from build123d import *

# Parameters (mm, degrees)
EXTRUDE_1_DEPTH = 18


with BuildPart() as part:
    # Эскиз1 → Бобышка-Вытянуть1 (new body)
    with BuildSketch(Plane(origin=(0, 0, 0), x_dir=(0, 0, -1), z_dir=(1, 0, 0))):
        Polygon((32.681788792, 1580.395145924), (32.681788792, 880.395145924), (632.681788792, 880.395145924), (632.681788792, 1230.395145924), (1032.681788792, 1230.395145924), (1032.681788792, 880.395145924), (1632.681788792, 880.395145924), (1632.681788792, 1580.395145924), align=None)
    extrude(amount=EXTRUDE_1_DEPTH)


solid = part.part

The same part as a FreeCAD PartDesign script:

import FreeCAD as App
import Part
import Sketcher
from FreeCAD import Vector


def add_polygon(sketch, points):
    """Adds a closed chain of lines whose ends are joined by coincident constraints."""
    first, n = sketch.GeometryCount, len(points)
    for a, b in zip(points, points[1:] + points[:1]):
        sketch.addGeometry(Part.LineSegment(App.Vector(*a, 0), App.Vector(*b, 0)), False)
    for i in range(n):
        sketch.addConstraint(Sketcher.Constraint("Coincident", first + i, 2, first + (i + 1) % n, 1))

doc = App.newDocument("Part")
body = doc.addObject("PartDesign::Body", "Body")

sketch1 = doc.addObject("Sketcher::SketchObject", "Sketch")
body.addObject(sketch1)
sketch1.AttachmentSupport = (doc.YZ_Plane, [""])
sketch1.MapMode = "FlatFace"
add_polygon(sketch1, [(1580.395146, -32.681789), (880.395146, -32.681789), (880.395146, -632.681789), (1230.395146, -632.681789), (1230.395146, -1032.681789), (880.395146, -1032.681789), (880.395146, -1632.681789), (1580.395146, -1632.681789)])
sketch1.addConstraint([
    Sketcher.Constraint("Horizontal", 0),
    Sketcher.Constraint("Vertical", 1),
    Sketcher.Constraint("Horizontal", 2),
    Sketcher.Constraint("Vertical", 3),
    Sketcher.Constraint("Horizontal", 4),
    Sketcher.Constraint("Vertical", 5),
    Sketcher.Constraint("Horizontal", 6),
    Sketcher.Constraint("Vertical", 7),
    Sketcher.Constraint("Vertical", 1, 2, 4, 2),
    Sketcher.Constraint("Equal", 1, 5),
    Sketcher.Constraint("DistanceX", 0, 2, 0, 1, 700.0),
    Sketcher.Constraint("DistanceX", 2, 1, 2, 2, 350.0),
    Sketcher.Constraint("DistanceY", 1, 2, 1, 1, 600.0),
    Sketcher.Constraint("DistanceY", 3, 2, 3, 1, 400.0),
    Sketcher.Constraint("DistanceY", 0, 2, -1, 1, 32.681789),
    Sketcher.Constraint("DistanceX", -1, 1, 0, 2, 880.395146),
])
pad1 = doc.addObject("PartDesign::Pad", "Pad")
body.addObject(pad1)
pad1.Profile = sketch1
pad1.Length = 18

doc.recompute()
